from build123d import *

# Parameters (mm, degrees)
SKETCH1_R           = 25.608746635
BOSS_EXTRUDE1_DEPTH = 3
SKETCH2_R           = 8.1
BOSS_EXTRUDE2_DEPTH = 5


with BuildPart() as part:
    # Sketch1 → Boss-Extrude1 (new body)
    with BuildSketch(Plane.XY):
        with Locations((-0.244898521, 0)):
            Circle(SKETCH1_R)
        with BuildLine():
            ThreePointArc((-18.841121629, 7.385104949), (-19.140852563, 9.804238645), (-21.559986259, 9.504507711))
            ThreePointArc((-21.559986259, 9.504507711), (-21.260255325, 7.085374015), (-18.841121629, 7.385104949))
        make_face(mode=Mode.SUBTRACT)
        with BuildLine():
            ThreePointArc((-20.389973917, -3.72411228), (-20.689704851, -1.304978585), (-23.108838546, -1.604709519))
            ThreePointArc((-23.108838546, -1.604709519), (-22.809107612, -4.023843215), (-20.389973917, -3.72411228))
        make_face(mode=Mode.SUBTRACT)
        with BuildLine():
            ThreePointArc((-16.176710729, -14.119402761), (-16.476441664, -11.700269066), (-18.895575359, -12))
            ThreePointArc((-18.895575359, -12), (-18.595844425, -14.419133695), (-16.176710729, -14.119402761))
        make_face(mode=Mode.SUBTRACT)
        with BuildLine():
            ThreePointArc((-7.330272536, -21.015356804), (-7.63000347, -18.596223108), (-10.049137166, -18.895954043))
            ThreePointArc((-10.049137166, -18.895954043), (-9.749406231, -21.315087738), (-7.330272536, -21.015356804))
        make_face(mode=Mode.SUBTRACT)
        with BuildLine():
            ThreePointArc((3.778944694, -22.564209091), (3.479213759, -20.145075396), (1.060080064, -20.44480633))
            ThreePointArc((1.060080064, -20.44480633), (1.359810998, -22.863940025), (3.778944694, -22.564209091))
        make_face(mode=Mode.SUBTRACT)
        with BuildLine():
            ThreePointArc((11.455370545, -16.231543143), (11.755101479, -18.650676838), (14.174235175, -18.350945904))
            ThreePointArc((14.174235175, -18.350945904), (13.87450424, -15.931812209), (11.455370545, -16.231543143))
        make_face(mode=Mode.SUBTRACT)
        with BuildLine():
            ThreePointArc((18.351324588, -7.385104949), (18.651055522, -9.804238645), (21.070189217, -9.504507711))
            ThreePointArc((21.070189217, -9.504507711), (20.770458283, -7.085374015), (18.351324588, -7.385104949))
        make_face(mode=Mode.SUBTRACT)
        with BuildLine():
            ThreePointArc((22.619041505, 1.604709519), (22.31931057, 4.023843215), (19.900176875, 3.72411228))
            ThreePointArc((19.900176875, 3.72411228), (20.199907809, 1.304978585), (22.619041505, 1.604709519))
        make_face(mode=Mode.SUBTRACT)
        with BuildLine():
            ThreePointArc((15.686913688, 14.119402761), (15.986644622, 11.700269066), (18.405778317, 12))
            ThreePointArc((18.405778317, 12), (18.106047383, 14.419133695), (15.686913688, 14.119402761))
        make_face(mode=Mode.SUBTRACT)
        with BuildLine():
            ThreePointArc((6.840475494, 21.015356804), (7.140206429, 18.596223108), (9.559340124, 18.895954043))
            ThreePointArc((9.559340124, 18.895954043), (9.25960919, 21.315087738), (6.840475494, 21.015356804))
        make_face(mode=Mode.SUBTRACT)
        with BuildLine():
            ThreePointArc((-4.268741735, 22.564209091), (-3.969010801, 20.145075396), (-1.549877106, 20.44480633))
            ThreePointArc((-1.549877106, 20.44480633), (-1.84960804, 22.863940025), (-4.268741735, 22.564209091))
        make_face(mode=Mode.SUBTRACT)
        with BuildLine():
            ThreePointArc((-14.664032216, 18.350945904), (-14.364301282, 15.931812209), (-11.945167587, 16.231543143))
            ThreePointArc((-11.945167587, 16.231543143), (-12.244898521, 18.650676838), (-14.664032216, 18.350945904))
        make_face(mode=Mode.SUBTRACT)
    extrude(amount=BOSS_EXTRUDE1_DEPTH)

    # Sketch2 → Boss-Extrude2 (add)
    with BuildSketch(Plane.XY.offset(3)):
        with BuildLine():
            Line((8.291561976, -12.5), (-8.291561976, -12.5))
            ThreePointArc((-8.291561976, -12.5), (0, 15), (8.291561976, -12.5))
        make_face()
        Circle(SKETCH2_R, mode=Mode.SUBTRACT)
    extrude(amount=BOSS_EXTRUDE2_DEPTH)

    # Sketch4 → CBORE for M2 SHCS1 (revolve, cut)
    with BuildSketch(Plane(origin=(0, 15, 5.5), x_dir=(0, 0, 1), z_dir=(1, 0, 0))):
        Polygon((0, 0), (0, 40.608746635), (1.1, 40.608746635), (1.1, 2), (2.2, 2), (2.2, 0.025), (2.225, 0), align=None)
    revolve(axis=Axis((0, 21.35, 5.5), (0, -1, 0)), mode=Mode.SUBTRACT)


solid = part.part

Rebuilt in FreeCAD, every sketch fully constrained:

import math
import FreeCAD as App
import Part
import Sketcher
from FreeCAD import Vector
Q = App.Units.Quantity

doc = App.newDocument("Part")
params = doc.addObject("Spreadsheet::Sheet", "Params")
for row, (alias, value) in enumerate([
    ("pad1_length", "3 mm"),
    ("sketch2_radius", "15 mm"),
    ("sketch2_diameter", "16.2 mm"),
    ("pad2_length", "5 mm"),
    ("sketch3_height", "1.1 mm"),
    ("groove_angle", "360 deg"),
], start=1):
    params.set(f"A{row}", alias)
    params.set(f"B{row}", "=" + value)
    params.setAlias(f"B{row}", alias)

body = doc.addObject("PartDesign::Body", "Body")

# Sketch on XY plane
sketch1 = body.newObject("Sketcher::SketchObject", "Sketch")
sketch1.AttachmentSupport = (doc.getObject("XY_Plane"), [""])
sketch1.MapMode = "FlatFace"
sketch1.addGeometry(Part.Circle(Vector(-0.2, 0, 0), Vector(0, 0, 1), 25.6), False)
sketch1.addGeometry(Part.ArcOfCircle(Part.Circle(Vector(-17.5, -13.1, 0), Vector(0, 0, 1), 1.7), math.radians(-38), math.radians(142)), False)
sketch1.addGeometry(Part.ArcOfCircle(Part.Circle(Vector(-17.5, -13.1, 0), Vector(0, 0, 1), 1.7), math.radians(142), math.radians(322)), False)
sketch1.addGeometry(Part.Circle(Vector(-8.7, -20, 0), Vector(0, 0, 1), 1.7), False)
sketch1.addGeometry(Part.ArcOfCircle(Part.Circle(Vector(-21.7, -2.7, 0), Vector(0, 0, 1), 1.7), math.radians(-38), math.radians(142)), False)
sketch1.addGeometry(Part.ArcOfCircle(Part.Circle(Vector(-21.7, -2.7, 0), Vector(0, 0, 1), 1.7), math.radians(142), math.radians(322)), False)
sketch1.addGeometry(Part.ArcOfCircle(Part.Circle(Vector(2.4, -21.5, 0), Vector(0, 0, 1), 1.7), math.radians(-38), math.radians(142)), False)
sketch1.addGeometry(Part.ArcOfCircle(Part.Circle(Vector(2.4, -21.5, 0), Vector(0, 0, 1), 1.7), math.radians(142), math.radians(322)), False)
sketch1.addGeometry(Part.ArcOfCircle(Part.Circle(Vector(12.8, -17.3, 0), Vector(0, 0, 1), 1.7), math.radians(142), math.radians(322)), False)
sketch1.addGeometry(Part.ArcOfCircle(Part.Circle(Vector(12.8, -17.3, 0), Vector(0, 0, 1), 1.7), math.radians(-38), math.radians(142)), False)
sketch1.addGeometry(Part.ArcOfCircle(Part.Circle(Vector(19.7, -8.4, 0), Vector(0, 0, 1), 1.7), math.radians(142), math.radians(322)), False)
sketch1.addGeometry(Part.ArcOfCircle(Part.Circle(Vector(19.7, -8.4, 0), Vector(0, 0, 1), 1.7), math.radians(-38), math.radians(142)), False)
sketch1.addGeometry(Part.Circle(Vector(-20.2, 8.4, 0), Vector(0, 0, 1), 1.7), False)
sketch1.addGeometry(Part.Circle(Vector(-13.3, 17.3, 0), Vector(0, 0, 1), 1.7), False)
sketch1.addGeometry(Part.Circle(Vector(-2.9, 21.5, 0), Vector(0, 0, 1), 1.7), False)
sketch1.addGeometry(Part.Circle(Vector(21.3, 2.7, 0), Vector(0, 0, 1), 1.7), False)
sketch1.addGeometry(Part.Circle(Vector(8.2, 20, 0), Vector(0, 0, 1), 1.7), False)
sketch1.addGeometry(Part.Circle(Vector(17, 13.1, 0), Vector(0, 0, 1), 1.7), False)
sketch1.addConstraint(Sketcher.Constraint("Tangent", 1, 1, 2, 2))
sketch1.addConstraint(Sketcher.Constraint("Coincident", 2, 1, 1, 2))
sketch1.addConstraint(Sketcher.Constraint("Tangent", 4, 1, 5, 2))
sketch1.addConstraint(Sketcher.Constraint("Coincident", 5, 1, 4, 2))
sketch1.addConstraint(Sketcher.Constraint("Tangent", 6, 1, 7, 2))
sketch1.addConstraint(Sketcher.Constraint("Coincident", 7, 1, 6, 2))
sketch1.addConstraint(Sketcher.Constraint("Tangent", 8, 1, 9, 2))
sketch1.addConstraint(Sketcher.Constraint("Coincident", 9, 1, 8, 2))
sketch1.addConstraint(Sketcher.Constraint("Tangent", 10, 1, 11, 2))
sketch1.addConstraint(Sketcher.Constraint("Coincident", 11, 1, 10, 2))
sketch1.addConstraint(Sketcher.Constraint("Equal", 2, 3))
sketch1.addConstraint(Sketcher.Constraint("Equal", 3, 4))
sketch1.addConstraint(Sketcher.Constraint("Equal", 5, 6))
sketch1.addConstraint(Sketcher.Constraint("Equal", 7, 8))
sketch1.addConstraint(Sketcher.Constraint("Equal", 9, 10))
sketch1.addConstraint(Sketcher.Constraint("Equal", 11, 12))
sketch1.addConstraint(Sketcher.Constraint("Equal", 12, 13))
sketch1.addConstraint(Sketcher.Constraint("Equal", 13, 14))
sketch1.addConstraint(Sketcher.Constraint("Equal", 14, 15))
sketch1.addConstraint(Sketcher.Constraint("Equal", 15, 16))
sketch1.addConstraint(Sketcher.Constraint("Equal", 16, 17))
sketch1.addConstraint(Sketcher.Constraint("PointOnObject", 0, 3, -1))
sketch1.addConstraint(Sketcher.Constraint("DistanceY", 2, 1, -1, 1, Q("12 mm")))
sketch1.addConstraint(Sketcher.Constraint("Diameter", 3, Q("3.447331 mm")))
sketch1.addConstraint(Sketcher.Constraint("Diameter", 0, Q("51.217493 mm")))
sketch1.addConstraint(Sketcher.Constraint("DistanceX", 0, 3, -1, 1, Q("0.244899 mm")))
sketch1.addConstraint(Sketcher.Constraint("DistanceY", 1, 3, -1, 1, Q("13.059701 mm")))
sketch1.addConstraint(Sketcher.Constraint("DistanceX", 13, 3, -1, 1, Q("13.3046 mm")))
sketch1.addConstraint(Sketcher.Constraint("DistanceY", -1, 1, 17, 3, Q("13.059701 mm")))
sketch1.addConstraint(Sketcher.Constraint("DistanceX", 4, 3, 3, 3, Q("13.059701 mm")))
sketch1.addConstraint(Sketcher.Constraint("DistanceX", 0, 3, 8, 3, Q("13.059701 mm")))
sketch1.addConstraint(Sketcher.Constraint("DistanceY", 7, 3, 10, 3, Q("13.059701 mm")))
sketch1.addConstraint(Sketcher.Constraint("DistanceY", 12, 3, 14, 3, Q("13.059701 mm")))
sketch1.addConstraint(Sketcher.Constraint("DistanceX", 16, 3, 15, 3, Q("13.059701 mm")))
sketch1.addConstraint(Sketcher.Constraint("DistanceY", 1, 1, 1, 3, Q("1.059701 mm")))
sketch1.addConstraint(Sketcher.Constraint("DistanceY", 4, 1, 5, 3, Q("1.059701 mm")))
sketch1.addConstraint(Sketcher.Constraint("DistanceX", 4, 1, 2, 1, Q("1.494399 mm")))
sketch1.addConstraint(Sketcher.Constraint("DistanceY", 4, 3, 5, 1, Q("1.059701 mm")))
sketch1.addConstraint(Sketcher.Constraint("DistanceY", 6, 1, 6, 3, Q("1.059701 mm")))
sketch1.addConstraint(Sketcher.Constraint("DistanceY", 7, 3, 7, 1, Q("1.059701 mm")))
sketch1.addConstraint(Sketcher.Constraint("DistanceY", 8, 3, 8, 1, Q("1.059701 mm")))
sketch1.addConstraint(Sketcher.Constraint("DistanceY", 9, 1, 9, 3, Q("1.059701 mm")))
sketch1.addConstraint(Sketcher.Constraint("DistanceY", 10, 3, 10, 1, Q("1.059701 mm")))
sketch1.addConstraint(Sketcher.Constraint("DistanceY", 11, 1, 11, 3, Q("1.059701 mm")))
sketch1.addConstraint(Sketcher.Constraint("DistanceY", 4, 3, -1, 1, Q("2.664411 mm")))
sketch1.addConstraint(Sketcher.Constraint("DistanceX", 14, 3, -1, 1, Q("2.909309 mm")))
sketch1.addConstraint(Sketcher.Constraint("DistanceX", -1, 1, 15, 3, Q("21.259609 mm")))
sketch1.addConstraint(Sketcher.Constraint("DistanceY", -1, 1, 15, 3, Q("2.664411 mm")))
sketch1.addConstraint(Sketcher.Constraint("DistanceX", 1, 1, -1, 1, Q("16.176711 mm")))
sketch1.addConstraint(Sketcher.Constraint("DistanceY", 6, 1, -1, 1, Q("22.564209 mm")))
sketch1.addConstraint(Sketcher.Constraint("DistanceX", -1, 1, 7, 1, Q("1.06008 mm")))
sketch1.addConstraint(Sketcher.Constraint("DistanceX", -1, 1, 11, 1, Q("21.070189 mm")))
sketch1.addConstraint(Sketcher.Constraint("DistanceY", 3, 3, 8, 3, Q("2.664411 mm")))
sketch1.addConstraint(Sketcher.Constraint("DistanceY", 8, 3, 10, 3, Q("8.846438 mm")))
sketch1.addConstraint(Sketcher.Constraint("DistanceX", 12, 3, 2, 3, Q("2.664411 mm")))
sketch1.addConstraint(Sketcher.Constraint("DistanceY", 12, 3, 13, 3, Q("8.846438 mm")))
sketch1.addConstraint(Sketcher.Constraint("DistanceY", 4, 3, 14, 3, Q("24.168919 mm")))
sketch1.addConstraint(Sketcher.Constraint("DistanceY", 13, 3, 16, 3, Q("2.664411 mm")))
sketch1.addConstraint(Sketcher.Constraint("DistanceX", 16, 3, 17, 3, Q("8.846438 mm")))
pad1 = body.newObject("PartDesign::Pad", "Pad")
pad1.Profile = sketch1
pad1.setExpression("Length", "Params.pad1_length")

# Sketch on XY plane
sketch2 = body.newObject("Sketcher::SketchObject", "Sketch001")
sketch2.AttachmentSupport = (doc.getObject("XY_Plane"), [""])
sketch2.MapMode = "FlatFace"
sketch2.AttachmentOffset = App.Placement(Vector(0, 0, 3), App.Rotation())
sketch2.addGeometry(Part.LineSegment(Vector(-8, -12, 0), Vector(8, -12, 0)), False)
sketch2.addGeometry(Part.ArcOfCircle(Part.Circle(Vector(0, 0, 0), Vector(0, 0, 1), 15), math.radians(-56), math.radians(236)), False)
sketch2.addGeometry(Part.Circle(Vector(0, 0, 0), Vector(0, 0, 1), 8), False)
sketch2.addConstraint(Sketcher.Constraint("Coincident", 0, 1, 1, 2))
sketch2.addConstraint(Sketcher.Constraint("Coincident", 1, 1, 0, 2))
sketch2.addConstraint(Sketcher.Constraint("Horizontal", 0))
sketch2.addConstraint(Sketcher.Constraint("Coincident", 1, 3, -1, 1))
sketch2.addConstraint(Sketcher.Constraint("Coincident", 2, 3, -1, 1))
sketch2.addConstraint(Sketcher.Constraint("Radius", 1, Q("15 mm")))
sketch2.addConstraint(Sketcher.Constraint("Diameter", 2, Q("16.2 mm")))
sketch2.addConstraint(Sketcher.Constraint("DistanceY", 0, 1, -1, 1, Q("12.5 mm")))
sketch2.setExpression("Constraints[5]", "Params.sketch2_radius")
sketch2.setExpression("Constraints[6]", "Params.sketch2_diameter")
pad2 = body.newObject("PartDesign::Pad", "Pad001")
pad2.Profile = sketch2
pad2.setExpression("Length", "Params.pad2_length")

# Sketch on YZ plane
sketch3 = body.newObject("Sketcher::SketchObject", "Sketch002")
sketch3.AttachmentSupport = (doc.getObject("YZ_Plane"), [""])
sketch3.MapMode = "FlatFace"
sketch3.addGeometry(Part.LineSegment(Vector(-25.609, 5.5, 0), Vector(15, 5.5, 0)), False)
sketch3.addGeometry(Part.LineSegment(Vector(15, 5.5, 0), Vector(15, 7.725, 0)), False)
sketch3.addGeometry(Part.LineSegment(Vector(15, 7.725, 0), Vector(14.975, 7.7, 0)), False)
sketch3.addGeometry(Part.LineSegment(Vector(14.975, 7.7, 0), Vector(13, 7.7, 0)), False)
sketch3.addGeometry(Part.LineSegment(Vector(13, 7.7, 0), Vector(13, 6.6, 0)), False)
sketch3.addGeometry(Part.LineSegment(Vector(13, 6.6, 0), Vector(-25.609, 6.6, 0)), False)
sketch3.addGeometry(Part.LineSegment(Vector(-25.609, 6.6, 0), Vector(-25.609, 5.5, 0)), False)
sketch3.addGeometry(Part.LineSegment(Vector(15, 5.5, 0), Vector(-25.609, 5.5, 0)), True)  # axis
sketch3.addConstraint(Sketcher.Constraint("Coincident", 0, 2, 1, 1))
sketch3.addConstraint(Sketcher.Constraint("Coincident", 1, 2, 2, 1))
sketch3.addConstraint(Sketcher.Constraint("Coincident", 2, 2, 3, 1))
sketch3.addConstraint(Sketcher.Constraint("Coincident", 3, 2, 4, 1))
sketch3.addConstraint(Sketcher.Constraint("Coincident", 4, 2, 5, 1))
sketch3.addConstraint(Sketcher.Constraint("Coincident", 5, 2, 6, 1))
sketch3.addConstraint(Sketcher.Constraint("Coincident", 6, 2, 0, 1))
sketch3.addConstraint(Sketcher.Constraint("Horizontal", 0))
sketch3.addConstraint(Sketcher.Constraint("Vertical", 1))
sketch3.addConstraint(Sketcher.Constraint("Horizontal", 3))
sketch3.addConstraint(Sketcher.Constraint("Vertical", 4))
sketch3.addConstraint(Sketcher.Constraint("Horizontal", 5))
sketch3.addConstraint(Sketcher.Constraint("Vertical", 6))
sketch3.addConstraint(Sketcher.Constraint("Horizontal", 7))
sketch3.addConstraint(Sketcher.Constraint("Coincident", 7, 1, 0, 2))
sketch3.addConstraint(Sketcher.Constraint("Vertical", 5, 2, 7, 2))
sketch3.addConstraint(Sketcher.Constraint("Equal", 4, 6))
sketch3.addConstraint(Sketcher.Constraint("Angle", 2, Q("-135 deg")))
sketch3.addConstraint(Sketcher.Constraint("DistanceY", 4, 2, 4, 1, Q("1.1 mm")))
sketch3.addConstraint(Sketcher.Constraint("DistanceX", -1, 1, 0, 2, Q("15 mm")))
sketch3.addConstraint(Sketcher.Constraint("DistanceX", -1, 1, 3, 2, Q("13 mm")))
sketch3.addConstraint(Sketcher.Constraint("DistanceY", -1, 1, 0, 2, Q("5.5 mm")))
sketch3.addConstraint(Sketcher.Constraint("DistanceX", 3, 2, 3, 1, Q("1.975 mm")))
sketch3.addConstraint(Sketcher.Constraint("DistanceX", 0, 1, 0, 2, Q("40.608747 mm")))
sketch3.setExpression("Constraints[18]", "Params.sketch3_height")
groove = body.newObject("PartDesign::Groove", "Groove")
groove.Profile = sketch3
groove.ReferenceAxis = (sketch3, ["Axis0"])
groove.setExpression("Angle", "Params.groove_angle")

doc.recompute()
